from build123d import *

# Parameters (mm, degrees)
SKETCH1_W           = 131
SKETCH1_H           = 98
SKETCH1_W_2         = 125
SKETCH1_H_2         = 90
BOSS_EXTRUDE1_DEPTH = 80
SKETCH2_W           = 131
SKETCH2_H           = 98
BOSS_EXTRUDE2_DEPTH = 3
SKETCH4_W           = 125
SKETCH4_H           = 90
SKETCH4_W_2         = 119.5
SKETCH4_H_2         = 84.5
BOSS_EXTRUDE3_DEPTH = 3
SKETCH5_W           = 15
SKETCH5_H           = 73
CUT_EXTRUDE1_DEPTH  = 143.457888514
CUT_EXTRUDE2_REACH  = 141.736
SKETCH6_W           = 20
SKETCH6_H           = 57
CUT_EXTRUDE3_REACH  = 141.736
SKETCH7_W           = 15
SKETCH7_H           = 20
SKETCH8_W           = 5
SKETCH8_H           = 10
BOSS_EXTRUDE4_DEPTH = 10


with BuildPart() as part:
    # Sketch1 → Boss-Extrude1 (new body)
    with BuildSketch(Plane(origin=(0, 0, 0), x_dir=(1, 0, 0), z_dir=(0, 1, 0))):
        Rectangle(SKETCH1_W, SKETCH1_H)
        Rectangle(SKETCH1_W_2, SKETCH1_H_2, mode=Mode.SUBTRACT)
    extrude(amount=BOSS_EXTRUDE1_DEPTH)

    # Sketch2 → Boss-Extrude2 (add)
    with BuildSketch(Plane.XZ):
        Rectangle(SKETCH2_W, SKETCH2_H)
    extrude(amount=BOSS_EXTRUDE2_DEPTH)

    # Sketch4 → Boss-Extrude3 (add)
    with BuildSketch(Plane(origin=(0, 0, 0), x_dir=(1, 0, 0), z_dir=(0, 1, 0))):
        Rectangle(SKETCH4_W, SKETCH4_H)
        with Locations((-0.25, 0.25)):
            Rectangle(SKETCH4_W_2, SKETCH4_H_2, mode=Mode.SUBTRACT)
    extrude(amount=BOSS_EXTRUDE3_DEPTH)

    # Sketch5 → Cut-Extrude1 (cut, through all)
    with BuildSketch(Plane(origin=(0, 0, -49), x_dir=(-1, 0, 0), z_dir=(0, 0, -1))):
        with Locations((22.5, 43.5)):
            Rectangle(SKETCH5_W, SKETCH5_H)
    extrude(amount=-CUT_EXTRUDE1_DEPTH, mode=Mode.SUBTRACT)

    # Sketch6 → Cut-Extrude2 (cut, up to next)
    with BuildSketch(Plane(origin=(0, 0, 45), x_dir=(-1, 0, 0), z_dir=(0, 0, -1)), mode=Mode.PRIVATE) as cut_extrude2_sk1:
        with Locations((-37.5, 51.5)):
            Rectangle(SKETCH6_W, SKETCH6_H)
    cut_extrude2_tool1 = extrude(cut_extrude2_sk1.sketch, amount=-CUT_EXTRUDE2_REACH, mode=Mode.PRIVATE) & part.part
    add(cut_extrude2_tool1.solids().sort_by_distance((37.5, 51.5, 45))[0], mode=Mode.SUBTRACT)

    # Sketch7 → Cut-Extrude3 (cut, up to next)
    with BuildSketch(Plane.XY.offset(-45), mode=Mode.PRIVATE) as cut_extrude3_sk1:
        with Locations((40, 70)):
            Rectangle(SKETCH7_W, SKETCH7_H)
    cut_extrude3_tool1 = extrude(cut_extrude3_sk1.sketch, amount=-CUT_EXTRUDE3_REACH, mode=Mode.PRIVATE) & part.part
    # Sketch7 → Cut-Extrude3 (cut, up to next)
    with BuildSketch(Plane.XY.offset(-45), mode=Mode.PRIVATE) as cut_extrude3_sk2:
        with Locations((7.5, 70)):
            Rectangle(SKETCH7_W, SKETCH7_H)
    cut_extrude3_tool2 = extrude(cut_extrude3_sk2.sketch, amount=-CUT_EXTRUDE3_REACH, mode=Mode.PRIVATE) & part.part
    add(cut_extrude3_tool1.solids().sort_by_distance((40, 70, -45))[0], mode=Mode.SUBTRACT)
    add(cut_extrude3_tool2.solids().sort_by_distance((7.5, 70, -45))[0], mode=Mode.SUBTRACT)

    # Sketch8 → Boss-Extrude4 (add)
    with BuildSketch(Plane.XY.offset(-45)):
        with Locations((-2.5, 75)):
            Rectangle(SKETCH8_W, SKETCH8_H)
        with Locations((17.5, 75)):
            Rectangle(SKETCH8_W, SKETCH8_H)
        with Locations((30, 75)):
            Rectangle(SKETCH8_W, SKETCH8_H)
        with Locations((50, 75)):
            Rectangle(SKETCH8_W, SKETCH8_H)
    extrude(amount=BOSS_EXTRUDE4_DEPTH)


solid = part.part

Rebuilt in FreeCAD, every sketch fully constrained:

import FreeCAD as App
import Part
import Sketcher

V = App.Vector
Q = App.Units.Quantity

doc = App.newDocument("Part")
body = doc.addObject("PartDesign::Body", "Body")

sketch1 = body.newObject("Sketcher::SketchObject", "Sketch")
sketch1.AttachmentSupport = (doc.getObject("XZ_Plane"), [""])
sketch1.MapMode = "FlatFace"
sketch1.addGeometry([
    Part.LineSegment(V(-66, -49, 0), V(-66, 49, 0)),
    Part.LineSegment(V(-66, 49, 0), V(66, 49, 0)),
    Part.LineSegment(V(66, 49, 0), V(66, -49, 0)),
    Part.LineSegment(V(66, -49, 0), V(-66, -49, 0)),
    Part.LineSegment(V(62, 45, 0), V(-62, 45, 0)),
    Part.LineSegment(V(-62, 45, 0), V(-62, -45, 0)),
    Part.LineSegment(V(-62, -45, 0), V(62, -45, 0)),
    Part.LineSegment(V(62, -45, 0), V(62, 45, 0)),
], False)
sketch1.addConstraint([
    Sketcher.Constraint("Coincident", 0, 2, 1, 1),
    Sketcher.Constraint("Coincident", 1, 2, 2, 1),
    Sketcher.Constraint("Coincident", 2, 2, 3, 1),
    Sketcher.Constraint("Coincident", 3, 2, 0, 1),
    Sketcher.Constraint("Coincident", 4, 2, 5, 1),
    Sketcher.Constraint("Coincident", 5, 2, 6, 1),
    Sketcher.Constraint("Coincident", 6, 2, 7, 1),
    Sketcher.Constraint("Coincident", 7, 2, 4, 1),
    Sketcher.Constraint("Vertical", 0),
    Sketcher.Constraint("Horizontal", 1),
    Sketcher.Constraint("Vertical", 2),
    Sketcher.Constraint("Horizontal", 3),
    Sketcher.Constraint("Horizontal", 4),
    Sketcher.Constraint("Vertical", 5),
    Sketcher.Constraint("Horizontal", 6),
    Sketcher.Constraint("Vertical", 7),
    Sketcher.Constraint("Symmetric", 0, 2, 2, 2, -1, 1),
    Sketcher.Constraint("Symmetric", 4, 2, 6, 2, -1, 1),
    Sketcher.Constraint("DistanceX", 1, 1, 1, 2, Q("131 mm")),
    Sketcher.Constraint("DistanceX", 4, 2, 4, 1, Q("125 mm")),
    Sketcher.Constraint("DistanceY", 0, 1, 0, 2, Q("98 mm")),
    Sketcher.Constraint("DistanceY", 5, 2, 5, 1, Q("90 mm")),
])
pad1 = body.newObject("PartDesign::Pad", "Pad")
pad1.Profile = sketch1
pad1.Length = 80
pad1.Reversed = True

sketch2 = body.newObject("Sketcher::SketchObject", "Sketch001")
sketch2.AttachmentSupport = (doc.getObject("XZ_Plane"), [""])
sketch2.MapMode = "FlatFace"
sketch2.addGeometry([
    Part.LineSegment(V(-66, 49, 0), V(-66, -49, 0)),
    Part.LineSegment(V(-66, -49, 0), V(66, -49, 0)),
    Part.LineSegment(V(66, -49, 0), V(66, 49, 0)),
    Part.LineSegment(V(66, 49, 0), V(-66, 49, 0)),
], False)
sketch2.addConstraint([
    Sketcher.Constraint("Coincident", 0, 2, 1, 1),
    Sketcher.Constraint("Coincident", 1, 2, 2, 1),
    Sketcher.Constraint("Coincident", 2, 2, 3, 1),
    Sketcher.Constraint("Coincident", 3, 2, 0, 1),
    Sketcher.Constraint("Vertical", 0),
    Sketcher.Constraint("Horizontal", 1),
    Sketcher.Constraint("Vertical", 2),
    Sketcher.Constraint("Horizontal", 3),
    Sketcher.Constraint("Symmetric", 0, 2, 2, 2, -1, 1),
    Sketcher.Constraint("DistanceX", 1, 1, 1, 2, Q("131 mm")),
    Sketcher.Constraint("DistanceY", 0, 2, 0, 1, Q("98 mm")),
])
pad2 = body.newObject("PartDesign::Pad", "Pad001")
pad2.Profile = sketch2
pad2.Length = 3

sketch3 = body.newObject("Sketcher::SketchObject", "Sketch002")
sketch3.AttachmentSupport = (doc.getObject("XZ_Plane"), [""])
sketch3.MapMode = "FlatFace"
sketch3.addGeometry([
    Part.LineSegment(V(-62, -45, 0), V(-62, 45, 0)),
    Part.LineSegment(V(-62, 45, 0), V(62, 45, 0)),
    Part.LineSegment(V(62, 45, 0), V(62, -45, 0)),
    Part.LineSegment(V(62, -45, 0), V(-62, -45, 0)),
    Part.LineSegment(V(60, 42, 0), V(-60, 42, 0)),
    Part.LineSegment(V(-60, 42, 0), V(-60, -42, 0)),
    Part.LineSegment(V(-60, -42, 0), V(60, -42, 0)),
    Part.LineSegment(V(60, -42, 0), V(60, 42, 0)),
], False)
sketch3.addConstraint([
    Sketcher.Constraint("Coincident", 0, 2, 1, 1),
    Sketcher.Constraint("Coincident", 1, 2, 2, 1),
    Sketcher.Constraint("Coincident", 2, 2, 3, 1),
    Sketcher.Constraint("Coincident", 3, 2, 0, 1),
    Sketcher.Constraint("Coincident", 4, 2, 5, 1),
    Sketcher.Constraint("Coincident", 5, 2, 6, 1),
    Sketcher.Constraint("Coincident", 6, 2, 7, 1),
    Sketcher.Constraint("Coincident", 7, 2, 4, 1),
    Sketcher.Constraint("Vertical", 0),
    Sketcher.Constraint("Horizontal", 1),
    Sketcher.Constraint("Vertical", 2),
    Sketcher.Constraint("Horizontal", 3),
    Sketcher.Constraint("Horizontal", 4),
    Sketcher.Constraint("Vertical", 5),
    Sketcher.Constraint("Horizontal", 6),
    Sketcher.Constraint("Vertical", 7),
    Sketcher.Constraint("Symmetric", 0, 2, 2, 2, -1, 1),
    Sketcher.Constraint("DistanceX", 1, 1, 1, 2, Q("125 mm")),
    Sketcher.Constraint("DistanceY", 0, 1, 0, 2, Q("90 mm")),
    Sketcher.Constraint("DistanceX", 4, 2, 4, 1, Q("119.5 mm")),
    Sketcher.Constraint("DistanceY", 5, 2, 5, 1, Q("84.5 mm")),
    Sketcher.Constraint("DistanceX", 4, 2, -1, 1, Q("60 mm")),
    Sketcher.Constraint("DistanceY", -1, 1, 4, 2, Q("42 mm")),
])
pad3 = body.newObject("PartDesign::Pad", "Pad002")
pad3.Profile = sketch3
pad3.Length = 3
pad3.Reversed = True

sketch4 = body.newObject("Sketcher::SketchObject", "Sketch003")
sketch4.AttachmentSupport = (doc.getObject("XY_Plane"), [""])
sketch4.MapMode = "FlatFace"
sketch4.AttachmentOffset = App.Placement(V(0, 0, -49), App.Rotation())
sketch4.addGeometry([
    Part.LineSegment(V(-15, 80, 0), V(-15, 7, 0)),
    Part.LineSegment(V(-15, 7, 0), V(-30, 7, 0)),
    Part.LineSegment(V(-30, 7, 0), V(-30, 80, 0)),
    Part.LineSegment(V(-30, 80, 0), V(-15, 80, 0)),
], False)
sketch4.addConstraint([
    Sketcher.Constraint("Coincident", 0, 2, 1, 1),
    Sketcher.Constraint("Coincident", 1, 2, 2, 1),
    Sketcher.Constraint("Coincident", 2, 2, 3, 1),
    Sketcher.Constraint("Coincident", 3, 2, 0, 1),
    Sketcher.Constraint("Vertical", 0),
    Sketcher.Constraint("Horizontal", 1),
    Sketcher.Constraint("Vertical", 2),
    Sketcher.Constraint("Horizontal", 3),
    Sketcher.Constraint("DistanceX", 1, 2, 1, 1, Q("15 mm")),
    Sketcher.Constraint("DistanceY", 0, 2, 0, 1, Q("73 mm")),
    Sketcher.Constraint("DistanceX", 0, 2, -1, 1, Q("15 mm")),
    Sketcher.Constraint("DistanceY", -1, 1, 0, 2, Q("7 mm")),
])
pocket1 = body.newObject("PartDesign::Pocket", "Pocket")
pocket1.Profile = sketch4
pocket1.Type = "ThroughAll"
pocket1.Reversed = True

sketch5 = body.newObject("Sketcher::SketchObject", "Sketch004")
sketch5.AttachmentSupport = (doc.getObject("XY_Plane"), [""])
sketch5.MapMode = "FlatFace"
sketch5.AttachmentOffset = App.Placement(V(0, 0, 45), App.Rotation())
sketch5.addGeometry([
    Part.LineSegment(V(48, 80, 0), V(48, 23, 0)),
    Part.LineSegment(V(48, 23, 0), V(28, 23, 0)),
    Part.LineSegment(V(28, 23, 0), V(28, 80, 0)),
    Part.LineSegment(V(28, 80, 0), V(48, 80, 0)),
], False)
sketch5.addConstraint([
    Sketcher.Constraint("Coincident", 0, 2, 1, 1),
    Sketcher.Constraint("Coincident", 1, 2, 2, 1),
    Sketcher.Constraint("Coincident", 2, 2, 3, 1),
    Sketcher.Constraint("Coincident", 3, 2, 0, 1),
    Sketcher.Constraint("Vertical", 0),
    Sketcher.Constraint("Horizontal", 1),
    Sketcher.Constraint("Vertical", 2),
    Sketcher.Constraint("Horizontal", 3),
    Sketcher.Constraint("DistanceX", 1, 2, 1, 1, Q("20 mm")),
    Sketcher.Constraint("DistanceY", 0, 2, 0, 1, Q("57 mm")),
    Sketcher.Constraint("DistanceY", -1, 1, 0, 2, Q("23 mm")),
    Sketcher.Constraint("DistanceX", -1, 1, 0, 2, Q("47.5 mm")),
])
pocket2 = body.newObject("PartDesign::Pocket", "Pocket001")
pocket2.Profile = sketch5
pocket2.Type = "UpToFirst"
pocket2.Reversed = True

sketch6 = body.newObject("Sketcher::SketchObject", "Sketch005")
sketch6.AttachmentSupport = (doc.getObject("XY_Plane"), [""])
sketch6.MapMode = "FlatFace"
sketch6.AttachmentOffset = App.Placement(V(0, 0, -45), App.Rotation())
sketch6.addGeometry([
    Part.LineSegment(V(32, 80, 0), V(32, 60, 0)),
    Part.LineSegment(V(32, 60, 0), V(48, 60, 0)),
    Part.LineSegment(V(48, 60, 0), V(48, 80, 0)),
    Part.LineSegment(V(48, 80, 0), V(32, 80, 0)),
], False)
sketch6.addConstraint([
    Sketcher.Constraint("Coincident", 0, 2, 1, 1),
    Sketcher.Constraint("Coincident", 1, 2, 2, 1),
    Sketcher.Constraint("Coincident", 2, 2, 3, 1),
    Sketcher.Constraint("Coincident", 3, 2, 0, 1),
    Sketcher.Constraint("Vertical", 0),
    Sketcher.Constraint("Horizontal", 1),
    Sketcher.Constraint("Vertical", 2),
    Sketcher.Constraint("Horizontal", 3),
    Sketcher.Constraint("DistanceX", 1, 1, 1, 2, Q("15 mm")),
    Sketcher.Constraint("DistanceY", 0, 2, 0, 1, Q("20 mm")),
    Sketcher.Constraint("DistanceY", -1, 1, 0, 2, Q("60 mm")),
    Sketcher.Constraint("DistanceX", -1, 1, 0, 2, Q("32.5 mm")),
])
pocket3 = body.newObject("PartDesign::Pocket", "Pocket002")
pocket3.Profile = sketch6
pocket3.Type = "UpToFirst"

sketch7 = body.newObject("Sketcher::SketchObject", "Sketch006")
sketch7.AttachmentSupport = (doc.getObject("XY_Plane"), [""])
sketch7.MapMode = "FlatFace"
sketch7.AttachmentOffset = App.Placement(V(0, 0, -45), App.Rotation())
sketch7.addGeometry([
    Part.LineSegment(V(0, 80, 0), V(0, 60, 0)),
    Part.LineSegment(V(0, 60, 0), V(15, 60, 0)),
    Part.LineSegment(V(15, 60, 0), V(15, 80, 0)),
    Part.LineSegment(V(15, 80, 0), V(0, 80, 0)),
], False)
sketch7.addConstraint([
    Sketcher.Constraint("Coincident", 0, 2, 1, 1),
    Sketcher.Constraint("Coincident", 1, 2, 2, 1),
    Sketcher.Constraint("Coincident", 2, 2, 3, 1),
    Sketcher.Constraint("Coincident", 3, 2, 0, 1),
    Sketcher.Constraint("Vertical", 0),
    Sketcher.Constraint("Horizontal", 1),
    Sketcher.Constraint("Vertical", 2),
    Sketcher.Constraint("Horizontal", 3),
    Sketcher.Constraint("PointOnObject", 0, 2, -2),
    Sketcher.Constraint("DistanceX", 1, 1, 1, 2, Q("15 mm")),
    Sketcher.Constraint("DistanceY", 0, 2, 0, 1, Q("20 mm")),
    Sketcher.Constraint("DistanceY", -1, 1, 0, 2, Q("60 mm")),
])
pocket4 = body.newObject("PartDesign::Pocket", "Pocket003")
pocket4.Profile = sketch7
pocket4.Type = "UpToFirst"

sketch8 = body.newObject("Sketcher::SketchObject", "Sketch007")
sketch8.AttachmentSupport = (doc.getObject("XY_Plane"), [""])
sketch8.MapMode = "FlatFace"
sketch8.AttachmentOffset = App.Placement(V(0, 0, -45), App.Rotation())
sketch8.addGeometry([
    Part.LineSegment(V(-5, 80, 0), V(-5, 70, 0)),
    Part.LineSegment(V(-5, 70, 0), V(0, 70, 0)),
    Part.LineSegment(V(0, 70, 0), V(0, 80, 0)),
    Part.LineSegment(V(0, 80, 0), V(-5, 80, 0)),
    Part.LineSegment(V(15, 80, 0), V(15, 70, 0)),
    Part.LineSegment(V(15, 70, 0), V(20, 70, 0)),
    Part.LineSegment(V(20, 70, 0), V(20, 80, 0)),
    Part.LineSegment(V(20, 80, 0), V(15, 80, 0)),
    Part.LineSegment(V(28, 80, 0), V(28, 70, 0)),
    Part.LineSegment(V(28, 70, 0), V(32, 70, 0)),
    Part.LineSegment(V(32, 70, 0), V(32, 80, 0)),
    Part.LineSegment(V(32, 80, 0), V(28, 80, 0)),
    Part.LineSegment(V(48, 80, 0), V(48, 70, 0)),
    Part.LineSegment(V(48, 70, 0), V(52, 70, 0)),
    Part.LineSegment(V(52, 70, 0), V(52, 80, 0)),
    Part.LineSegment(V(52, 80, 0), V(48, 80, 0)),
], False)
sketch8.addConstraint([
    Sketcher.Constraint("Coincident", 0, 2, 1, 1),
    Sketcher.Constraint("Coincident", 1, 2, 2, 1),
    Sketcher.Constraint("Coincident", 2, 2, 3, 1),
    Sketcher.Constraint("Coincident", 3, 2, 0, 1),
    Sketcher.Constraint("Coincident", 4, 2, 5, 1),
    Sketcher.Constraint("Coincident", 5, 2, 6, 1),
    Sketcher.Constraint("Coincident", 6, 2, 7, 1),
    Sketcher.Constraint("Coincident", 7, 2, 4, 1),
    Sketcher.Constraint("Coincident", 8, 2, 9, 1),
    Sketcher.Constraint("Coincident", 9, 2, 10, 1),
    Sketcher.Constraint("Coincident", 10, 2, 11, 1),
    Sketcher.Constraint("Coincident", 11, 2, 8, 1),
    Sketcher.Constraint("Coincident", 12, 2, 13, 1),
    Sketcher.Constraint("Coincident", 13, 2, 14, 1),
    Sketcher.Constraint("Coincident", 14, 2, 15, 1),
    Sketcher.Constraint("Coincident", 15, 2, 12, 1),
    Sketcher.Constraint("Vertical", 0),
    Sketcher.Constraint("Horizontal", 1),
    Sketcher.Constraint("Vertical", 2),
    Sketcher.Constraint("Horizontal", 3),
    Sketcher.Constraint("Vertical", 4),
    Sketcher.Constraint("Horizontal", 5),
    Sketcher.Constraint("Vertical", 6),
    Sketcher.Constraint("Horizontal", 7),
    Sketcher.Constraint("Vertical", 8),
    Sketcher.Constraint("Horizontal", 9),
    Sketcher.Constraint("Vertical", 10),
    Sketcher.Constraint("Horizontal", 11),
    Sketcher.Constraint("Vertical", 12),
    Sketcher.Constraint("Horizontal", 13),
    Sketcher.Constraint("Vertical", 14),
    Sketcher.Constraint("Horizontal", 15),
    Sketcher.Constraint("PointOnObject", 1, 2, -2),
    Sketcher.Constraint("Horizontal", 1, 2, 4, 2),
    Sketcher.Constraint("Horizontal", 3, 2, 6, 2),
    Sketcher.Constraint("Horizontal", 5, 2, 8, 2),
    Sketcher.Constraint("Horizontal", 7, 2, 10, 2),
    Sketcher.Constraint("Horizontal", 9, 2, 12, 2),
    Sketcher.Constraint("Horizontal", 11, 2, 14, 2),
    Sketcher.Constraint("Equal", 3, 5),
    Sketcher.Constraint("Equal", 7, 9),
    Sketcher.Constraint("Equal", 11, 13),
    Sketcher.Constraint("DistanceX", 1, 1, 1, 2, Q("5 mm")),
    Sketcher.Constraint("DistanceY", 0, 2, 0, 1, Q("10 mm")),
    Sketcher.Constraint("DistanceY", -1, 1, 0, 2, Q("70 mm")),
    Sketcher.Constraint("DistanceX", -1, 1, 4, 2, Q("15 mm")),
    Sketcher.Constraint("DistanceX", 9, 2, 12, 2, Q("15 mm")),
    Sketcher.Constraint("DistanceX", -1, 1, 8, 2, Q("27.5 mm")),
])
pad4 = body.newObject("PartDesign::Pad", "Pad003")
pad4.Profile = sketch8
pad4.Length = 10

doc.recompute()
